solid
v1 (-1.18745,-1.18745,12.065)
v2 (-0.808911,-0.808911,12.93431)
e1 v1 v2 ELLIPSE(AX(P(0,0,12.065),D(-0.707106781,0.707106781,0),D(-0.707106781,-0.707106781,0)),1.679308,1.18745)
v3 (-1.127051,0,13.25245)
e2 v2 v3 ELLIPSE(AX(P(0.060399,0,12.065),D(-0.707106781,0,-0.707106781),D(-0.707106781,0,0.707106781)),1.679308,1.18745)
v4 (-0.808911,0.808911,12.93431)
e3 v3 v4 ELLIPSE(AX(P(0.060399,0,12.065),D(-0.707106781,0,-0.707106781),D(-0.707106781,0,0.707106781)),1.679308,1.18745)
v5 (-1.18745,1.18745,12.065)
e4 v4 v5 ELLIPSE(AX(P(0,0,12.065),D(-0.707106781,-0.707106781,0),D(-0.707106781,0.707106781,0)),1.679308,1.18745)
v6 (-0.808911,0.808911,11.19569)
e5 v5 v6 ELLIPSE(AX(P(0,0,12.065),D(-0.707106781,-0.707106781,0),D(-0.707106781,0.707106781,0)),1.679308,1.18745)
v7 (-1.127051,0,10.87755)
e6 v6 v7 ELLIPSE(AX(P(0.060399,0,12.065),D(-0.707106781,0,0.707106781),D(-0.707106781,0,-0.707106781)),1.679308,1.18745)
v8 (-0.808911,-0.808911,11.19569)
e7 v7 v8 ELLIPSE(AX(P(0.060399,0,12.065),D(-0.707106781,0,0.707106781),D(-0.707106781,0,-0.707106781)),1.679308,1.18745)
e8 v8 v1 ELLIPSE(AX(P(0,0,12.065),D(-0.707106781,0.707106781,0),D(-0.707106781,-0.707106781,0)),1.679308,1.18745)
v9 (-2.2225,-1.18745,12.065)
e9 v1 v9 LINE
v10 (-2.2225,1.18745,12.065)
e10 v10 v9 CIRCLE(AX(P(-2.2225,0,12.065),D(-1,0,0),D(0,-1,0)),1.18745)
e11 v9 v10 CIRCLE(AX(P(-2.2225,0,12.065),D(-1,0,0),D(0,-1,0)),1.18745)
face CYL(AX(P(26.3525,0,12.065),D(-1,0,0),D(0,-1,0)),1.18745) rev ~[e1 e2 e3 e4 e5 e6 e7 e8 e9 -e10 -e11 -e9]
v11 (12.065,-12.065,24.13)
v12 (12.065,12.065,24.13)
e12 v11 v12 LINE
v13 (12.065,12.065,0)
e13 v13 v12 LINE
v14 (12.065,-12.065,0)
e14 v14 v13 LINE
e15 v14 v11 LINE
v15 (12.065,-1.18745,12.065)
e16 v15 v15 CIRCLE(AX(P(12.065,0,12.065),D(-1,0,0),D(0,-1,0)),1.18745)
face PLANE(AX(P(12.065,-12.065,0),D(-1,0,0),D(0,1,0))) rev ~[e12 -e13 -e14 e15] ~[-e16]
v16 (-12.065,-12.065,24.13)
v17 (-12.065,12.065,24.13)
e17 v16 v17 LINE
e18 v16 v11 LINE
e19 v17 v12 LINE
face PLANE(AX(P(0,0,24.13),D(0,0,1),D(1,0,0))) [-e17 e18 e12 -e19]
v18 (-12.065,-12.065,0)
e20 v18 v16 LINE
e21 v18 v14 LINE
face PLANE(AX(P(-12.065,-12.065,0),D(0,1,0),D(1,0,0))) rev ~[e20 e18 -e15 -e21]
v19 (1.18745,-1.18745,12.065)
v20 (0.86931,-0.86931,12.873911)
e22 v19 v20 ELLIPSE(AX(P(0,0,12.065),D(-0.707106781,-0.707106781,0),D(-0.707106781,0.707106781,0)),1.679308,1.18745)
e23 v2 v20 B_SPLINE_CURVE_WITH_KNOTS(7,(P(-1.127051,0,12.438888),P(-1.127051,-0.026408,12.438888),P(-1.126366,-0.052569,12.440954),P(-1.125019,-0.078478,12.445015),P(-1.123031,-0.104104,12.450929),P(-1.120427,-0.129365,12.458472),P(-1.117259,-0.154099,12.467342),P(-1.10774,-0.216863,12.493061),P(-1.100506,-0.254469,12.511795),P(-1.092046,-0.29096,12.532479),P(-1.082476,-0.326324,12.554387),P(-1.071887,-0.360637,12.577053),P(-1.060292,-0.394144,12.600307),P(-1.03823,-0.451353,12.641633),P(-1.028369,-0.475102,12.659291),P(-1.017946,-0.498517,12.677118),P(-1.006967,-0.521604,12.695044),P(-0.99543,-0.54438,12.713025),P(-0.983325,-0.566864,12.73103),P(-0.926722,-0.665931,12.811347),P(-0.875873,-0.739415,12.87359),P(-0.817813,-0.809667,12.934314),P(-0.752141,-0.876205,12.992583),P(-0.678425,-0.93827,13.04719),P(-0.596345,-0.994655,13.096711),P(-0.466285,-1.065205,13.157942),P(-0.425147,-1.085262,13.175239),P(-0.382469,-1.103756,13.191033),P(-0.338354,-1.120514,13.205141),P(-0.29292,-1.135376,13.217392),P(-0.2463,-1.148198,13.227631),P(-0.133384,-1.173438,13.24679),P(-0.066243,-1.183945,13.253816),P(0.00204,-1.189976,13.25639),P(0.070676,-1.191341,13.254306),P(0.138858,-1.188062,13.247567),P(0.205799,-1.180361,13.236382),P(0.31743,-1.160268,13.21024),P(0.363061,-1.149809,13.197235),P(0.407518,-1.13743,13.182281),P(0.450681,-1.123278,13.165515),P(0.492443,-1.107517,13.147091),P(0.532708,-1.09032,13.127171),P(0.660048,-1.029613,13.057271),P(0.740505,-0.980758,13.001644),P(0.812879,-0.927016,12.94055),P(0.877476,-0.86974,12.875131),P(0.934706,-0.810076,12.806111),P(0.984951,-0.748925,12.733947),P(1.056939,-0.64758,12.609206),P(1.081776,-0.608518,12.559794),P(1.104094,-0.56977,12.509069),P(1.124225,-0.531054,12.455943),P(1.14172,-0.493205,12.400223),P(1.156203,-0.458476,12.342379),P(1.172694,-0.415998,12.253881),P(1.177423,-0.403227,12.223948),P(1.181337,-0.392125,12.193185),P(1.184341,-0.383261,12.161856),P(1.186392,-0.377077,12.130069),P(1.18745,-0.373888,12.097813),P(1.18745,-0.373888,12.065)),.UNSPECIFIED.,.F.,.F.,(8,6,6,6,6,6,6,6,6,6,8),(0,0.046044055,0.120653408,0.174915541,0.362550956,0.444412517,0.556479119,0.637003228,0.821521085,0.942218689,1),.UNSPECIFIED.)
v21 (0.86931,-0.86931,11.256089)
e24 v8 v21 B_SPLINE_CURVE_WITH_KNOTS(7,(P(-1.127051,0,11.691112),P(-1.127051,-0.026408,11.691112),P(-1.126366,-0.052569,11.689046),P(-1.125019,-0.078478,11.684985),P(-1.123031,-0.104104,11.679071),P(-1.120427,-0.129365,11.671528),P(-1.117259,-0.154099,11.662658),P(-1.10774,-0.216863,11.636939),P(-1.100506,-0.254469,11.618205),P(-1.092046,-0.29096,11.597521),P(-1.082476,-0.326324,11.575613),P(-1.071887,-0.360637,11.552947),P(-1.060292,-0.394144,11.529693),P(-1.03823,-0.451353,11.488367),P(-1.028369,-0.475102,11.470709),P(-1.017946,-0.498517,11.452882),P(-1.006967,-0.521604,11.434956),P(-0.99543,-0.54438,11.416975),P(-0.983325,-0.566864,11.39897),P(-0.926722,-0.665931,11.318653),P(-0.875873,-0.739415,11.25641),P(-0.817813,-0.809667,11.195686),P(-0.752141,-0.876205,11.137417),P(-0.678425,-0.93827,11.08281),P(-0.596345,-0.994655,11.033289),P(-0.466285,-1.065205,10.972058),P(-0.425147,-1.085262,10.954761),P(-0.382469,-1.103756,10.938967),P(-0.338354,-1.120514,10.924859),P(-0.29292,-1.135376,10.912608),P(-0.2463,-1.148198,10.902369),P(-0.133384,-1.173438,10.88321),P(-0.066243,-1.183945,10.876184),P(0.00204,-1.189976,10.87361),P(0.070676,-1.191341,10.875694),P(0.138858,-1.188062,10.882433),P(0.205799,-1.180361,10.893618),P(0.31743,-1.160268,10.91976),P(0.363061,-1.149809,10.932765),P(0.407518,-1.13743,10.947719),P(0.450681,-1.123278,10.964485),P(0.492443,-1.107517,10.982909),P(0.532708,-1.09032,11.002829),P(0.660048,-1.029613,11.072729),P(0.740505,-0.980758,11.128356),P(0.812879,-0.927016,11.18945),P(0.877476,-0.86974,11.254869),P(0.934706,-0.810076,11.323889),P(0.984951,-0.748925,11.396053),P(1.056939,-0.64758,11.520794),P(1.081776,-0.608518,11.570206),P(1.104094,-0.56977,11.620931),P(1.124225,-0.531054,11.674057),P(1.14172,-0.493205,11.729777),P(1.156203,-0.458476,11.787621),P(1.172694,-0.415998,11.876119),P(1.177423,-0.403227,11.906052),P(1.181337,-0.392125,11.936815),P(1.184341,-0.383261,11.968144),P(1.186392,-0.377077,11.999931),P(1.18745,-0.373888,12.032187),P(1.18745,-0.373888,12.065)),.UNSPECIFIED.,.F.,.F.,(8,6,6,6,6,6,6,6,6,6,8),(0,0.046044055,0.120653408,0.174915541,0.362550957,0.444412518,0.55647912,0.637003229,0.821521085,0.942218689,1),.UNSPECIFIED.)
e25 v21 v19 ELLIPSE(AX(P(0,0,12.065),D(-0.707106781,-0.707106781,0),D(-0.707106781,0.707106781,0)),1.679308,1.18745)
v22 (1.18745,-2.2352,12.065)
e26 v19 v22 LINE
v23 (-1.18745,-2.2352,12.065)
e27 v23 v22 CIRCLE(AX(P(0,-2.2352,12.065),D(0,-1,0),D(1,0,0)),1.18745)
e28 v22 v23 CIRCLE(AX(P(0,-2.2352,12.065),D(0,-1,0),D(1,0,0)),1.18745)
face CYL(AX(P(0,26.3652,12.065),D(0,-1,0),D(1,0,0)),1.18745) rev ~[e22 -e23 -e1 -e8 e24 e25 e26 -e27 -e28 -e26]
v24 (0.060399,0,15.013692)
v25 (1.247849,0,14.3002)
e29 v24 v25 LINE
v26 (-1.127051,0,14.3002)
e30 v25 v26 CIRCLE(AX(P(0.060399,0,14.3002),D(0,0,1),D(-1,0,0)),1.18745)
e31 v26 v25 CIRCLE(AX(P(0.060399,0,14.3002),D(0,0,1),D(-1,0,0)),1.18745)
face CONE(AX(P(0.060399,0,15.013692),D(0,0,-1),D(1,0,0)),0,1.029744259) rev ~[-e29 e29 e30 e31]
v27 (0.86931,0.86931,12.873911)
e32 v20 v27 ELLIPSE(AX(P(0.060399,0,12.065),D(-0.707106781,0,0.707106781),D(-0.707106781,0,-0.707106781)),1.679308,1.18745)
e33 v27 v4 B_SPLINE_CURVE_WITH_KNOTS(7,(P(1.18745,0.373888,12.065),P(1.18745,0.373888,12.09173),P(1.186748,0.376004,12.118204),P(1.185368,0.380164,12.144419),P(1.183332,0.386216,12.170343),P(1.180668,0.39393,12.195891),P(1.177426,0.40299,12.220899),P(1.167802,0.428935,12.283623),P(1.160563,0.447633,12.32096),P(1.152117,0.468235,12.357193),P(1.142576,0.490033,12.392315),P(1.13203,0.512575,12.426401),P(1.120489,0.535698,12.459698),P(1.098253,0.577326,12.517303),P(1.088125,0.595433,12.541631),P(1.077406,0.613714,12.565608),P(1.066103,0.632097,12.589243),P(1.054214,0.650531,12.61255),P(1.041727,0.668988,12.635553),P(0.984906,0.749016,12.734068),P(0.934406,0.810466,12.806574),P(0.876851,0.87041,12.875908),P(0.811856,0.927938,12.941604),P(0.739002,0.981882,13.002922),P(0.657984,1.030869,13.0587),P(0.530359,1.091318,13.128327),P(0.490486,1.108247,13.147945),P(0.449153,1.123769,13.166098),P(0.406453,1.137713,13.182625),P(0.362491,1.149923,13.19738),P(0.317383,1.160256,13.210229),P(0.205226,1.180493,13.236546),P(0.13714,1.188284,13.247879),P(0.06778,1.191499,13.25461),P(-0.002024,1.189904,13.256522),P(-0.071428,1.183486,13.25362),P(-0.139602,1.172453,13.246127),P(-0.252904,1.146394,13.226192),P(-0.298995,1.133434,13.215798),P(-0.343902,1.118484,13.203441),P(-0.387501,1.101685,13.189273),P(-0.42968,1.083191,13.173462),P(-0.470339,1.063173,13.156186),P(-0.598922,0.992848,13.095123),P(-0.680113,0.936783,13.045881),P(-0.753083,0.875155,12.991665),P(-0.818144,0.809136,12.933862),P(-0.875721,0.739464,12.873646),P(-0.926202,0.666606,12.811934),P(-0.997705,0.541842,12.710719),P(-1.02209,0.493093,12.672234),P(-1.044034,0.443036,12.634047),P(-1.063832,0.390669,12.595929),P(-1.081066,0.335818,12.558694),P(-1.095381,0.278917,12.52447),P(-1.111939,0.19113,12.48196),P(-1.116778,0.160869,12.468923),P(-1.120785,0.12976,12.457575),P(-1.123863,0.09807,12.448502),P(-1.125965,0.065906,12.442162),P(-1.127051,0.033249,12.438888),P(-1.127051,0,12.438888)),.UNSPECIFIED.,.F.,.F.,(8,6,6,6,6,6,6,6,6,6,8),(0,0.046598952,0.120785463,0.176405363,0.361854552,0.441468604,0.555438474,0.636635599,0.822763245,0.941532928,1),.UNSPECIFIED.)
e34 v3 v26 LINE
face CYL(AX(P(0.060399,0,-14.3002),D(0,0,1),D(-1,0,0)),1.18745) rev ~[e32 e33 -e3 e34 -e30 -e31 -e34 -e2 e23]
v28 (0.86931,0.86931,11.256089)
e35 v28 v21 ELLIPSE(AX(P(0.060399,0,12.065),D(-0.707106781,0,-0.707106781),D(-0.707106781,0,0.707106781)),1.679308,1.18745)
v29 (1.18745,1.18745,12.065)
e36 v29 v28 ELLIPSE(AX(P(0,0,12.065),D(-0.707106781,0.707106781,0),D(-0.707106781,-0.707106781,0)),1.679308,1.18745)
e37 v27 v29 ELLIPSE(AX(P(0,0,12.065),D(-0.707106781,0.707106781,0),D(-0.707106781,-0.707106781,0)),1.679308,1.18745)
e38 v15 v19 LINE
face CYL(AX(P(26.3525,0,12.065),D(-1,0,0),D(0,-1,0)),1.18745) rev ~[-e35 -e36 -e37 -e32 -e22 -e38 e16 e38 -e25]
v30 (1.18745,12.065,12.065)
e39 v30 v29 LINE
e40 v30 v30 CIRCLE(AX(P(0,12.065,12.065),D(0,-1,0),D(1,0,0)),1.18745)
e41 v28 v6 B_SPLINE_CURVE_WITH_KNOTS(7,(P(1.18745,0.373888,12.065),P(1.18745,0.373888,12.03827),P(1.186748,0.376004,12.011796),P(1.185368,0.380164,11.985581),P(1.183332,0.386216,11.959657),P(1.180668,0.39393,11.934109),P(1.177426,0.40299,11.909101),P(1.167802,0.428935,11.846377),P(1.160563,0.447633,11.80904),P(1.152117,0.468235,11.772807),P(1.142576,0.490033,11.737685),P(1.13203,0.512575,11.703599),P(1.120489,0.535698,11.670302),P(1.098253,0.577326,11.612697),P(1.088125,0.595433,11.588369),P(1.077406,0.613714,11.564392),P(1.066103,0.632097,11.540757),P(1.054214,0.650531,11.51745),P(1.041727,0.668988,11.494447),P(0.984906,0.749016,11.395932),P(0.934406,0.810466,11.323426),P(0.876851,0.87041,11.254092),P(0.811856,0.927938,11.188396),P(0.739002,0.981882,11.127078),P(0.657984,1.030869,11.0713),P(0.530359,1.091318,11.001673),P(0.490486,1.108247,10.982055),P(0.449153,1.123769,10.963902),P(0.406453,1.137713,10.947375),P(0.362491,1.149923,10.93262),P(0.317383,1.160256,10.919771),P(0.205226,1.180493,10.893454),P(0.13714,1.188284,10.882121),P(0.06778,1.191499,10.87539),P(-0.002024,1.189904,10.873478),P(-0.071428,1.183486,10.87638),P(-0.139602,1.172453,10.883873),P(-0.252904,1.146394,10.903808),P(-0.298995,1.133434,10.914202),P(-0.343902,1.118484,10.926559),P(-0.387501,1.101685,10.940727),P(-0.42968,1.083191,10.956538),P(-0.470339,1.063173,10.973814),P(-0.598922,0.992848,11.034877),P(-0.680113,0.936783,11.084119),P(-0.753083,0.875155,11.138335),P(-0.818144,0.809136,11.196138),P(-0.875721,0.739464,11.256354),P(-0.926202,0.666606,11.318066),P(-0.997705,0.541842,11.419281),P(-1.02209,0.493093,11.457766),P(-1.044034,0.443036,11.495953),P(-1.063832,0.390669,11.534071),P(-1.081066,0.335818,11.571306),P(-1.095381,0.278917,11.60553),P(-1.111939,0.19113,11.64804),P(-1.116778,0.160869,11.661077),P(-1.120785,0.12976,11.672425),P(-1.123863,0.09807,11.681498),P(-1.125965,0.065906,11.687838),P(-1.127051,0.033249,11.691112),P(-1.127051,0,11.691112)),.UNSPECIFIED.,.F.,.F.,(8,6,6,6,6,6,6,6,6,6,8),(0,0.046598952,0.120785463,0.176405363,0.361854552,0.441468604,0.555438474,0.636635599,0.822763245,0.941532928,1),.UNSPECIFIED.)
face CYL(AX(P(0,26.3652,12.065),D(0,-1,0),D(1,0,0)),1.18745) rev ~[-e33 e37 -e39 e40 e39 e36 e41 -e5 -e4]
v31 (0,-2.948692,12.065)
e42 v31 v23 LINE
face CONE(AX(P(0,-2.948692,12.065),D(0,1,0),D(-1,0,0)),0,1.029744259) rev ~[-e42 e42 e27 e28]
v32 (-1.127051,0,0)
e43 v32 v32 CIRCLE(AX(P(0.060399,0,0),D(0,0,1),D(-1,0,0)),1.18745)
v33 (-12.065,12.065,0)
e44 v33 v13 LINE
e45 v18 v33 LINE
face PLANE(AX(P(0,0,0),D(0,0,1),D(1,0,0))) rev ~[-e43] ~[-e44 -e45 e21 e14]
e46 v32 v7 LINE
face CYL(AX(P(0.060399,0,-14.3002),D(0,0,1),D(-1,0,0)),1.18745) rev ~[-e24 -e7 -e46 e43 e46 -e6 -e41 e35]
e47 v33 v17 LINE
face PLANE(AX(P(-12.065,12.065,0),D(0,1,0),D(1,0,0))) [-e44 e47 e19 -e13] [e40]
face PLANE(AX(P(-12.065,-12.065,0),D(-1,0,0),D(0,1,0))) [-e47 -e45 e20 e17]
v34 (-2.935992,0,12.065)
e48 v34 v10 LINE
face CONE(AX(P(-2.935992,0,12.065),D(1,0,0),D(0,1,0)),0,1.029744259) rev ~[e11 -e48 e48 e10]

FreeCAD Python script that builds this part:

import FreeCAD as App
import Part
import Sketcher

V = App.Vector
Q = App.Units.Quantity


def add_polygon(sketch, points):
    """Adds a closed chain of lines whose ends are joined by coincident constraints."""
    first, n = sketch.GeometryCount, len(points)
    for a, b in zip(points, points[1:] + points[:1]):
        sketch.addGeometry(Part.LineSegment(App.Vector(*a, 0), App.Vector(*b, 0)), False)
    for i in range(n):
        sketch.addConstraint(Sketcher.Constraint("Coincident", first + i, 2, first + (i + 1) % n, 1))

doc = App.newDocument("Part")
body = doc.addObject("PartDesign::Body", "Body")

# Sketch on XY plane
sketch1 = body.newObject("Sketcher::SketchObject", "Sketch")
sketch1.AttachmentSupport = (doc.getObject("XY_Plane"), [""])
sketch1.MapMode = "FlatFace"
add_polygon(sketch1, [(-12, 12), (-12, -12), (12, -12), (12, 12)])  # lines 0-3
sketch1.addConstraint([
    Sketcher.Constraint("Vertical", 0),
    Sketcher.Constraint("Horizontal", 1),
    Sketcher.Constraint("Vertical", 2),
    Sketcher.Constraint("Horizontal", 3),
    Sketcher.Constraint("Symmetric", 0, 2, 2, 2, -1, 1),
    Sketcher.Constraint("Equal", 3, 0),
    Sketcher.Constraint("DistanceX", 1, 1, 1, 2, Q("0.95 in")),
])
pad1 = body.newObject("PartDesign::Pad", "Pad")
pad1.Profile = sketch1
pad1.Length = Q("0.95 in")

# Sketch on YZ plane
sketch2 = body.newObject("Sketcher::SketchObject", "Sketch001")
sketch2.AttachmentSupport = (doc.getObject("YZ_Plane"), [""])
sketch2.MapMode = "FlatFace"
sketch2.AttachmentOffset = App.Placement(V(0, 0, 0.475 * 25.4), App.Rotation())
sketch2.addGeometry(Part.Circle(V(0, 12.1, 0), V(0, 0, 1), 1.2), False)
sketch2.addConstraint([
    Sketcher.Constraint("PointOnObject", 0, 3, -2),
    Sketcher.Constraint("Diameter", 0, Q("0.0935 in")),
    Sketcher.Constraint("DistanceY", -1, 1, 0, 3, Q("0.475 in")),
])
doc.recompute()
hole = body.newObject("PartDesign::Hole", "Hole")
hole.Profile = sketch2
hole.ThreadType = "None"
hole.Diameter = Q("0.0935 in")
hole.DepthType = "Dimension"
hole.Depth = Q("0.5625 in")
hole.DrillPoint = "Angled"
hole.DrillPointAngle = 118

# Sketch on XY plane
sketch3 = body.newObject("Sketcher::SketchObject", "Sketch002")
sketch3.AttachmentSupport = (doc.getObject("XY_Plane"), [""])
sketch3.MapMode = "FlatFace"
sketch3.addGeometry(Part.Circle(V(0.1, 0, 0), V(0, 0, 1), 1.2), False)
sketch3.addConstraint([
    Sketcher.Constraint("PointOnObject", 0, 3, -1),
    Sketcher.Constraint("Diameter", 0, Q("0.0935 in")),
    Sketcher.Constraint("DistanceX", -1, 1, 0, 3, 0.060399),
])
doc.recompute()
hole2 = body.newObject("PartDesign::Hole", "Hole001")
hole2.Profile = sketch3
hole2.ThreadType = "None"
hole2.Diameter = Q("0.0935 in")
hole2.DepthType = "Dimension"
hole2.Depth = Q("0.563 in")
hole2.DrillPoint = "Angled"
hole2.DrillPointAngle = 118
hole2.Reversed = True

# Sketch on XZ plane
sketch4 = body.newObject("Sketcher::SketchObject", "Sketch003")
sketch4.AttachmentSupport = (doc.getObject("XZ_Plane"), [""])
sketch4.MapMode = "FlatFace"
sketch4.AttachmentOffset = App.Placement(V(0, 0, -0.475 * 25.4), App.Rotation())
sketch4.addGeometry(Part.Circle(V(0, 12.1, 0), V(0, 0, 1), 1.2), False)
sketch4.addConstraint([
    Sketcher.Constraint("PointOnObject", 0, 3, -2),
    Sketcher.Constraint("Diameter", 0, Q("0.0935 in")),
    Sketcher.Constraint("DistanceY", -1, 1, 0, 3, Q("0.475 in")),
])
doc.recompute()
hole3 = body.newObject("PartDesign::Hole", "Hole002")
hole3.Profile = sketch4
hole3.ThreadType = "None"
hole3.Diameter = Q("0.0935 in")
hole3.DepthType = "Dimension"
hole3.Depth = Q("0.563 in")
hole3.DrillPoint = "Angled"
hole3.DrillPointAngle = 118
hole3.Reversed = True

doc.recompute()
